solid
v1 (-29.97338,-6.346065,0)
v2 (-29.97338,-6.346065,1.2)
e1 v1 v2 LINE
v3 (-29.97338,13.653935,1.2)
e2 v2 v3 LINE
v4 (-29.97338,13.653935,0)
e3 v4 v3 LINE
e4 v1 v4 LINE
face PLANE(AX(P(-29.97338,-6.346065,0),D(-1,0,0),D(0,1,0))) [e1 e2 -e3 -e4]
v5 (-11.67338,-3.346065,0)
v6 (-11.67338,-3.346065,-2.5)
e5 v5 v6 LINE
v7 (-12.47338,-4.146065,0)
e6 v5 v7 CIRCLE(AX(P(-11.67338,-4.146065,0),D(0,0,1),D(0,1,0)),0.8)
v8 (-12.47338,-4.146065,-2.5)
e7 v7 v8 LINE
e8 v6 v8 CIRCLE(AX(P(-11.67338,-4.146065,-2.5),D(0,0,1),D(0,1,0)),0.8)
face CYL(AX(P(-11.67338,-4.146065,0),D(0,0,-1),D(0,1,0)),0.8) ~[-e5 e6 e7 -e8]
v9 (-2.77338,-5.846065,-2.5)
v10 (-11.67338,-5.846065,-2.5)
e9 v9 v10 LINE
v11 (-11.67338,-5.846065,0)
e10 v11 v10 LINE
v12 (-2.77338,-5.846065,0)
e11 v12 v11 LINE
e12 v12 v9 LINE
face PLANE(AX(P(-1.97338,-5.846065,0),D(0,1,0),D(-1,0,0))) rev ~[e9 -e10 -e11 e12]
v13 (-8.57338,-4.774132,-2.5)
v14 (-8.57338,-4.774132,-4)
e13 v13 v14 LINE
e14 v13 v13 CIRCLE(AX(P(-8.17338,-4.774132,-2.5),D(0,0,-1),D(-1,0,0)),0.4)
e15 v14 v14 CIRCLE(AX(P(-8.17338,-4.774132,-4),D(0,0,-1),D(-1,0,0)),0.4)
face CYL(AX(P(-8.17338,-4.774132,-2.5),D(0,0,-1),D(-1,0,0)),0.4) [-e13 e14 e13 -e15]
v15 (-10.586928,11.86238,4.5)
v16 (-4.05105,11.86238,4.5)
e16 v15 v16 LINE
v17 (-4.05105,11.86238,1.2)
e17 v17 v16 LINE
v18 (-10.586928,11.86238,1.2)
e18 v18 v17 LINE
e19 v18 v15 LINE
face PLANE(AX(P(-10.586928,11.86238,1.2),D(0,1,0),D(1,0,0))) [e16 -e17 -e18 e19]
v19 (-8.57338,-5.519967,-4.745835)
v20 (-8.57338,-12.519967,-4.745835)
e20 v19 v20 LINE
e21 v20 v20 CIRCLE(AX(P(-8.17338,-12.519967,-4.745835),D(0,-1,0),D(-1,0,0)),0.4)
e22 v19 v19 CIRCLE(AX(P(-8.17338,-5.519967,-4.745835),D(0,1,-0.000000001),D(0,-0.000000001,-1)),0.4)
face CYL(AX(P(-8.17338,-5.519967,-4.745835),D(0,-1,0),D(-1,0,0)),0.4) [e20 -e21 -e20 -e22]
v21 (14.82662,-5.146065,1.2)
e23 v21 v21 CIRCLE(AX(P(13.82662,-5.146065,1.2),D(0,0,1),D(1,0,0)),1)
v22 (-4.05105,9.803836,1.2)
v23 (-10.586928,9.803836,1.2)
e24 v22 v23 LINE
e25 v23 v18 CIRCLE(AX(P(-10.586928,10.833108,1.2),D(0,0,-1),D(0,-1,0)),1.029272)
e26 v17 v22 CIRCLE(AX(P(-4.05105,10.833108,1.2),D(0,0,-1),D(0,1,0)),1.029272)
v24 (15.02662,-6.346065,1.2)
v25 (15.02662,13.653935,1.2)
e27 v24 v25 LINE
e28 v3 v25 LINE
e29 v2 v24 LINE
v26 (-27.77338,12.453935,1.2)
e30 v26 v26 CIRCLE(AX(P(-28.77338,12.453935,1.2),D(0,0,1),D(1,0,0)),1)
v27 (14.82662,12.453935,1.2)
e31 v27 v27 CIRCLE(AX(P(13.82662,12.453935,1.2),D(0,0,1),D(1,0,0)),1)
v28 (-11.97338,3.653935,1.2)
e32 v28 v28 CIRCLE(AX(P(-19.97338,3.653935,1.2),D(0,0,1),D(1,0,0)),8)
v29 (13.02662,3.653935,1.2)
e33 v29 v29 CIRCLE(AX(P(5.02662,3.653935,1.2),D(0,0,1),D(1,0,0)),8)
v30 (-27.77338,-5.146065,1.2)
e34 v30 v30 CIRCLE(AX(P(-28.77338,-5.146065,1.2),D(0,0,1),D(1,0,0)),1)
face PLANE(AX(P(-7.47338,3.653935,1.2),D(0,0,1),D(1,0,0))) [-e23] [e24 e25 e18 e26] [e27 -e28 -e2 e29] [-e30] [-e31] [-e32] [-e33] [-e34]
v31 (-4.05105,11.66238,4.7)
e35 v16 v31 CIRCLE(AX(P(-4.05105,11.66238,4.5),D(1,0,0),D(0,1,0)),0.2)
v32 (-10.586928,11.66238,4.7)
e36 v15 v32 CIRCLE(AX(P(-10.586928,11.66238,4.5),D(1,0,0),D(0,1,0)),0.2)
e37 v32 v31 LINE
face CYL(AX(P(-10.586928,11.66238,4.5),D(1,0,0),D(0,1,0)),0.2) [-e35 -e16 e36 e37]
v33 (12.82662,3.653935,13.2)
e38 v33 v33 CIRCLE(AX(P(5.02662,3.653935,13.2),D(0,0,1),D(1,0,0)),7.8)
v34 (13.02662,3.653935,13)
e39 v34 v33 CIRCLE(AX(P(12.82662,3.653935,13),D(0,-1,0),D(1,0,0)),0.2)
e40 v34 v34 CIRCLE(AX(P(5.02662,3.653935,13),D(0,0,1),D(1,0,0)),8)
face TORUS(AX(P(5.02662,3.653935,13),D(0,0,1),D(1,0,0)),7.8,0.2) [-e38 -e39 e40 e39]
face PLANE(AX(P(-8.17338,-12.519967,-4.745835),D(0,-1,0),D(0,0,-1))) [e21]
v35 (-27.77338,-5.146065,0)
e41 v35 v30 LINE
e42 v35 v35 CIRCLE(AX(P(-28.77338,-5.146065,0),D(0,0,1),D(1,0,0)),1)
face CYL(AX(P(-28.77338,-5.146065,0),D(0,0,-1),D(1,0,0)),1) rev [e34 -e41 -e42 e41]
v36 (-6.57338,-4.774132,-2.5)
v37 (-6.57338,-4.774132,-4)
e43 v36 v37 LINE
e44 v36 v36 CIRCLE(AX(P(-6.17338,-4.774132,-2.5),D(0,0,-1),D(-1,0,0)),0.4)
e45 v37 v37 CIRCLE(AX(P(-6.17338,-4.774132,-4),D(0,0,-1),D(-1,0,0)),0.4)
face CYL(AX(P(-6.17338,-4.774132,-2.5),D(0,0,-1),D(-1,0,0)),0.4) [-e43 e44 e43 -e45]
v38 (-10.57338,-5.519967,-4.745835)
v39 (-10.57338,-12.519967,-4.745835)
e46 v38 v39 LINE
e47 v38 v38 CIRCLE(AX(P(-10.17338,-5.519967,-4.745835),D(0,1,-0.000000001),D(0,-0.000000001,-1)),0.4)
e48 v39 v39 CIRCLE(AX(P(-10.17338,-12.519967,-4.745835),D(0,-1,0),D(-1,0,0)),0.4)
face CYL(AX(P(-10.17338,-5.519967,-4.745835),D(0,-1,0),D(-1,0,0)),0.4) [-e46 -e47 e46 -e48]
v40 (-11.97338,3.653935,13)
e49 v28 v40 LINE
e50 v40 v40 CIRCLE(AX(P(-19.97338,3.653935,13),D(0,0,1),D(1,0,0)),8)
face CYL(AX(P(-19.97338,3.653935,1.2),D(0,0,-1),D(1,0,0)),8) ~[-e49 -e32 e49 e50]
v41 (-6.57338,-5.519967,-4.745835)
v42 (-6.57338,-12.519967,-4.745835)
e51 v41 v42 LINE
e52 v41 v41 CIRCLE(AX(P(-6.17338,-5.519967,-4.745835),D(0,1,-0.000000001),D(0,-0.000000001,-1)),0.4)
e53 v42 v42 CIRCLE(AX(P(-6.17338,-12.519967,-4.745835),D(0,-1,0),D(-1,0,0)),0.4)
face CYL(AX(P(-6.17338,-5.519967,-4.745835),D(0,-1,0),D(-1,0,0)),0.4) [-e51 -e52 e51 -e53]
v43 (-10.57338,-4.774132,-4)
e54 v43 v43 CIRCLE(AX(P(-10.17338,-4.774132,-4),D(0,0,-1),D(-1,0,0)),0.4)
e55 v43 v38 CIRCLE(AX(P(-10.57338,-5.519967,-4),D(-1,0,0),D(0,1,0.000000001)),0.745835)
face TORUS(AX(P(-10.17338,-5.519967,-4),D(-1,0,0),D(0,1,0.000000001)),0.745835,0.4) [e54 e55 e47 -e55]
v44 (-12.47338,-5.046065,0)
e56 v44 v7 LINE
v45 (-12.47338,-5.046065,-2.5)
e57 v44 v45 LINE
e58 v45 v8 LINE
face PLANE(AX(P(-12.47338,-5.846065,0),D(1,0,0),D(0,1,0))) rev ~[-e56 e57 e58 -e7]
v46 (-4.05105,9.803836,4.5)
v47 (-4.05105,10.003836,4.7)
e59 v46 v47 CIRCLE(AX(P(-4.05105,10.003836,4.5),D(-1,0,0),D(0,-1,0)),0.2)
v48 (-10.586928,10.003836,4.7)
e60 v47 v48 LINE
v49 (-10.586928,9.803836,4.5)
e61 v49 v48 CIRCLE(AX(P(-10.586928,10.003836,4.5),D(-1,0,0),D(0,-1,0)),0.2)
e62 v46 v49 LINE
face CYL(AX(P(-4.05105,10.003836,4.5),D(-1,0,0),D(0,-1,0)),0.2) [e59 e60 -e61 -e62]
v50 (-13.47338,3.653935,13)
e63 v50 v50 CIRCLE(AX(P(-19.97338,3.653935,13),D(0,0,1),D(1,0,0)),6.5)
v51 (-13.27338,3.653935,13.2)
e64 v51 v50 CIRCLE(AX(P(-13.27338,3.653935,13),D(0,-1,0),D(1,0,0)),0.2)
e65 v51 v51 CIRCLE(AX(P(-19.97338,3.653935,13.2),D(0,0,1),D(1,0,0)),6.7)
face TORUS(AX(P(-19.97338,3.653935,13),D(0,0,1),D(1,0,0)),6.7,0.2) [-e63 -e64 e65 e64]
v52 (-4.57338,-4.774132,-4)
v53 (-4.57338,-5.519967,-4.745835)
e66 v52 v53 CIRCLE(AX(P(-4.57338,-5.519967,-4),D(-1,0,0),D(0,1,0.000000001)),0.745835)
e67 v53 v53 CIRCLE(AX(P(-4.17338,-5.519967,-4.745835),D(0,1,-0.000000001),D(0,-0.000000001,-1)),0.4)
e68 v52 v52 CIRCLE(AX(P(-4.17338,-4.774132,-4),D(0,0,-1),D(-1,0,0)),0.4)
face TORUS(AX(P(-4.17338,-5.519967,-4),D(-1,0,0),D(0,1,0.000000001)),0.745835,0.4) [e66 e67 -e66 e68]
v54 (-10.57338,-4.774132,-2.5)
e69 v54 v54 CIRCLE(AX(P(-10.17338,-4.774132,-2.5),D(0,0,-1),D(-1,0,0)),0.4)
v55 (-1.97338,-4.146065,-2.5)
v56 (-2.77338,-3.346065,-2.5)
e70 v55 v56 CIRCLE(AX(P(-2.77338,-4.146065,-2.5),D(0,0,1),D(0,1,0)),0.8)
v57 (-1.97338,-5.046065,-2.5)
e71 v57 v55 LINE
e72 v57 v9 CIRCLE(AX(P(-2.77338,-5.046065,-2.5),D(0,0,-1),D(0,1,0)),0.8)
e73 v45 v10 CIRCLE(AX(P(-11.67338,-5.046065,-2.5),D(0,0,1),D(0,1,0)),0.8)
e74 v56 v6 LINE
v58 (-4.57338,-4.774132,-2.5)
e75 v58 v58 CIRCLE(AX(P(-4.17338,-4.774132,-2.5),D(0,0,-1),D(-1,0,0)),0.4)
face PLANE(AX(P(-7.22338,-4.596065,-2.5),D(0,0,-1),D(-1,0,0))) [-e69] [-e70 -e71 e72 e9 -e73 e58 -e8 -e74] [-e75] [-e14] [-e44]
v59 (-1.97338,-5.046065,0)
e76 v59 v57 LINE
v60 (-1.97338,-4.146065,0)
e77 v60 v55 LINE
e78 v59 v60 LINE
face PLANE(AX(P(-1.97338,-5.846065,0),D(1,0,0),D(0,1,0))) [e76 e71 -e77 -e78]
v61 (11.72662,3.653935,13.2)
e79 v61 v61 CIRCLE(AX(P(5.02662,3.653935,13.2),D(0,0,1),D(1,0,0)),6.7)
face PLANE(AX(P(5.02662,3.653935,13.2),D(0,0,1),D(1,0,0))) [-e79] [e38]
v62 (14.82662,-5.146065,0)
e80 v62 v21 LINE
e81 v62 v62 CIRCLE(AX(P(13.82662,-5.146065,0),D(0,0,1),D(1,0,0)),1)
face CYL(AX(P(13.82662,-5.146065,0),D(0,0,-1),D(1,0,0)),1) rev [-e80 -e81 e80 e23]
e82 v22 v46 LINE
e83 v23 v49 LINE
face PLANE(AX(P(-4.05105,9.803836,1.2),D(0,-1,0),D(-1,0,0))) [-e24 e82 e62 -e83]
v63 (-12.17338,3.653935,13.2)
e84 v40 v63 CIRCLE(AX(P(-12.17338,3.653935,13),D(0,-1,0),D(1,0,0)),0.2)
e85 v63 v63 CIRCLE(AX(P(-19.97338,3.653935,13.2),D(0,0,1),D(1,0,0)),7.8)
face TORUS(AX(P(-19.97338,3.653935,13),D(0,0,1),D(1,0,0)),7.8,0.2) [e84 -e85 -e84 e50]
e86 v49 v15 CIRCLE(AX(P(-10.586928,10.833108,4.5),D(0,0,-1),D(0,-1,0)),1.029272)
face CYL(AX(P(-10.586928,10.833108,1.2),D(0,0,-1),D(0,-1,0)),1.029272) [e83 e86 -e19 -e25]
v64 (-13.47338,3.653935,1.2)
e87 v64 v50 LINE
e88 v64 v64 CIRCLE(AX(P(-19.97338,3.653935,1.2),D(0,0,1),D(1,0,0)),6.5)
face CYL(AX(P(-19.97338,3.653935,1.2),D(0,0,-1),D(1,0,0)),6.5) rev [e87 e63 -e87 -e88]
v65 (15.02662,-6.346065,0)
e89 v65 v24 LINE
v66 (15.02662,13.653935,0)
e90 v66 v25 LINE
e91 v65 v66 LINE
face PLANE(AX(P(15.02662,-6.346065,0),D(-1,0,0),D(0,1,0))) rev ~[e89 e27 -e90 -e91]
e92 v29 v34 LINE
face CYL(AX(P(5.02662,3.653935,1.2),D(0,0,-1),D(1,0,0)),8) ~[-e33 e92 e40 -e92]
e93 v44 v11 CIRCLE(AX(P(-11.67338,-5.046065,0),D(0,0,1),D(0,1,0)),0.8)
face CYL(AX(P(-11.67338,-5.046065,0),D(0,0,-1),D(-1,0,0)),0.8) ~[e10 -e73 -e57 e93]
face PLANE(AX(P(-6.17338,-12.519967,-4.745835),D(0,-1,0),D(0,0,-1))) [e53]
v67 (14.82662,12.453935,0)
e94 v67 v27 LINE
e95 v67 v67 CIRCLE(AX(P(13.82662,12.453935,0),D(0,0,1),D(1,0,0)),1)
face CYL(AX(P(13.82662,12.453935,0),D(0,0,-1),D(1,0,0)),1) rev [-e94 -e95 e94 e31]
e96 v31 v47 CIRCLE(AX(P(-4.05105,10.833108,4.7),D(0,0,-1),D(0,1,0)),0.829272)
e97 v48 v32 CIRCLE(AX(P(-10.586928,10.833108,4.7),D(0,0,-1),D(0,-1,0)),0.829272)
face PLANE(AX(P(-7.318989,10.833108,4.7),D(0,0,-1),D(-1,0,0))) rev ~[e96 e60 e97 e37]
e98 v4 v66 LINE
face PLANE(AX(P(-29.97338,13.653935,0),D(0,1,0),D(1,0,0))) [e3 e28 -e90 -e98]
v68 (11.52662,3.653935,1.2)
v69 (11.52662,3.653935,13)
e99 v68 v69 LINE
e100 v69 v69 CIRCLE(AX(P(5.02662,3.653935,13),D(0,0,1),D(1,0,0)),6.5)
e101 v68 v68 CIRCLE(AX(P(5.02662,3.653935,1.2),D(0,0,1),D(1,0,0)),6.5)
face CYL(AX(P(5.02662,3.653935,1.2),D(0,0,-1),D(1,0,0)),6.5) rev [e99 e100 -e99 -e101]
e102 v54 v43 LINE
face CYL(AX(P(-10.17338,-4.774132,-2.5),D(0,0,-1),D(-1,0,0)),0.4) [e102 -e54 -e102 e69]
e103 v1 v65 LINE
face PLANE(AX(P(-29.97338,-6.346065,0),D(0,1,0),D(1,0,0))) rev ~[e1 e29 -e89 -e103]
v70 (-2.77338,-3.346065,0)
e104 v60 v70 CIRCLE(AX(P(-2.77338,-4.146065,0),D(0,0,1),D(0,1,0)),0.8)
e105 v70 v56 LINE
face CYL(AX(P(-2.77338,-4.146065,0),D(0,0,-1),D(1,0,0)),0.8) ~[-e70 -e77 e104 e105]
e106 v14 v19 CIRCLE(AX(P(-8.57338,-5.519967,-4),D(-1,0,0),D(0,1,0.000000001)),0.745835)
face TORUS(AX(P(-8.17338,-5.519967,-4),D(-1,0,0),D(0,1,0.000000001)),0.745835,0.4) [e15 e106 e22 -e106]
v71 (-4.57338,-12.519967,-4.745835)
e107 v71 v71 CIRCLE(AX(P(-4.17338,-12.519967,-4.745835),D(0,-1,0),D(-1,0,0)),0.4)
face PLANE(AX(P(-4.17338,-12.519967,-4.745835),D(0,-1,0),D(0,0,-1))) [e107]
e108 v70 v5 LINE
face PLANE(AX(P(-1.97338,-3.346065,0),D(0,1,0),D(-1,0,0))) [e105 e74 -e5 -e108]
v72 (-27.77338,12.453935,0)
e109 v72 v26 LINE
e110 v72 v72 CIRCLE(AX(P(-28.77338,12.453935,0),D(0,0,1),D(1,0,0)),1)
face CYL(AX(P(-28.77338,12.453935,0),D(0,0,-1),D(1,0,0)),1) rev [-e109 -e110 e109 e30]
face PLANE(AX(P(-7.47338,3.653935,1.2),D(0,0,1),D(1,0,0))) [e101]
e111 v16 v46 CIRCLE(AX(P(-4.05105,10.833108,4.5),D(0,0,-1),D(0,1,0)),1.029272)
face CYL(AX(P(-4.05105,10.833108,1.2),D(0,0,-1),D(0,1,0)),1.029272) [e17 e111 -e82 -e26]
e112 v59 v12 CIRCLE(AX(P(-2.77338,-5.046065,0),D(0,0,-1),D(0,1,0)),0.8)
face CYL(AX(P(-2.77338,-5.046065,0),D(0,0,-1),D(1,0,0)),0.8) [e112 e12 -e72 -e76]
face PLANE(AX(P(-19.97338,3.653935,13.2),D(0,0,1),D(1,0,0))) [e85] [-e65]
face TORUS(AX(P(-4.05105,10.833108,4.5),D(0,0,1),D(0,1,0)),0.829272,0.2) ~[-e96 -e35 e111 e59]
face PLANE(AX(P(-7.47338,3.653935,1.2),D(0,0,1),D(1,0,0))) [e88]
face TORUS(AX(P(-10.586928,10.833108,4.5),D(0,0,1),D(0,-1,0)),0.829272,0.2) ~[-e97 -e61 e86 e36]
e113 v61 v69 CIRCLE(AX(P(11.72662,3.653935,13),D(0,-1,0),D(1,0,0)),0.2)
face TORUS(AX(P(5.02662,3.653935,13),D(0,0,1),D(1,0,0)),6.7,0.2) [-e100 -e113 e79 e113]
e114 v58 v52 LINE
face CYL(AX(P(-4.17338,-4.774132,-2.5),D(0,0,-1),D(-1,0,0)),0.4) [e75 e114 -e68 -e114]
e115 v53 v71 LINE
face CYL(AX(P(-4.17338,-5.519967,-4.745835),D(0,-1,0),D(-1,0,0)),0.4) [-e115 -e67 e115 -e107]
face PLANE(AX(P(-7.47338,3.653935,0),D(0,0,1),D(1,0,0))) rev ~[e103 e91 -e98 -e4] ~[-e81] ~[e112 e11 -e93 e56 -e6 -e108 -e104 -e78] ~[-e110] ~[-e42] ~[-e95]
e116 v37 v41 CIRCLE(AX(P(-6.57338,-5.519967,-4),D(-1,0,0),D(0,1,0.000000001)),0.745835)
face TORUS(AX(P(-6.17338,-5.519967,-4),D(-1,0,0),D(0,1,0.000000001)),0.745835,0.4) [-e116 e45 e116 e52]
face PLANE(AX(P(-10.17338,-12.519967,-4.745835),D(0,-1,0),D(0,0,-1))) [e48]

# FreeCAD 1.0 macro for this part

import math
import FreeCAD as App
import Part
import Sketcher
from FreeCAD import Vector
Q = App.Units.Quantity


def edges_at(feature, points):
    """Names of the edges that pass closest to the given points."""
    edges = feature.Shape.Edges
    near = lambda p: min(range(len(edges)), key=lambda i: edges[i].distToShape(Part.Vertex(*p))[0])
    return sorted({f"Edge{near(p) + 1}" for p in points})


def add_polygon(sketch, points):
    """Adds a closed chain of lines whose ends are joined by coincident constraints."""
    first, n = sketch.GeometryCount, len(points)
    for a, b in zip(points, points[1:] + points[:1]):
        sketch.addGeometry(Part.LineSegment(App.Vector(*a, 0), App.Vector(*b, 0)), False)
    for i in range(n):
        sketch.addConstraint(Sketcher.Constraint("Coincident", first + i, 2, first + (i + 1) % n, 1))

doc = App.newDocument("Part")
body = doc.addObject("PartDesign::Body", "Body")

sketch1 = body.newObject("Sketcher::SketchObject", "Sketch")
sketch1.AttachmentSupport = (doc.getObject("XY_Plane"), [""])
sketch1.MapMode = "FlatFace"
add_polygon(sketch1, [(-29.97338, 13.653935), (-29.97338, -6.346065), (15.02662, -6.346065), (15.02662, 13.653935)])
sketch1.addGeometry(Part.Circle(Vector(-28.77338, -5.146065, 0), Vector(0, 0, 1), 1), False)
sketch1.addGeometry(Part.Circle(Vector(13.82662, -5.146065, 0), Vector(0, 0, 1), 1), False)
sketch1.addGeometry(Part.Circle(Vector(-28.77338, 12.453935, 0), Vector(0, 0, 1), 1), False)
sketch1.addGeometry(Part.Circle(Vector(13.82662, 12.453935, 0), Vector(0, 0, 1), 1), False)
sketch1.addConstraint([
    Sketcher.Constraint("Vertical", 0),
    Sketcher.Constraint("Horizontal", 1),
    Sketcher.Constraint("Vertical", 2),
    Sketcher.Constraint("Horizontal", 3),
    Sketcher.Constraint("Equal", 4, 5),
    Sketcher.Constraint("Equal", 5, 6),
    Sketcher.Constraint("Equal", 6, 7),
    Sketcher.Constraint("Horizontal", 4, 3, 5, 3),
    Sketcher.Constraint("Horizontal", 6, 3, 7, 3),
    Sketcher.Constraint("Vertical", 4, 3, 6, 3),
    Sketcher.Constraint("Vertical", 5, 3, 7, 3),
    Sketcher.Constraint("Diameter", 4, Q("2 mm")),
    Sketcher.Constraint("DistanceX", 1, 1, 1, 2, Q("45 mm")),
    Sketcher.Constraint("DistanceY", 0, 2, 0, 1, Q("20 mm")),
    Sketcher.Constraint("DistanceX", 4, 3, 5, 3, Q("42.6 mm")),
    Sketcher.Constraint("DistanceY", 4, 3, 6, 3, Q("17.6 mm")),
    Sketcher.Constraint("DistanceX", 0, 2, 4, 3, Q("1.2 mm")),
    Sketcher.Constraint("DistanceY", 0, 2, 4, 3, Q("1.2 mm")),
    Sketcher.Constraint("DistanceX", 4, 3, -1, 1, Q("28.77338 mm")),
    Sketcher.Constraint("DistanceY", 4, 3, -1, 1, Q("5.146065 mm")),
])
pad1 = body.newObject("PartDesign::Pad", "Pad")
pad1.Profile = sketch1
pad1.Length = 1.2

sketch2 = body.newObject("Sketcher::SketchObject", "Sketch001")
sketch2.AttachmentSupport = (doc.getObject("XY_Plane"), [""])
sketch2.MapMode = "FlatFace"
sketch2.AttachmentOffset = App.Placement(Vector(0, 0, 1.2), App.Rotation())
sketch2.addGeometry([
    Part.Circle(Vector(-19.97338, 3.653935, 0), Vector(0, 0, 1), 8),
    Part.Circle(Vector(-19.97338, 3.653935, 0), Vector(0, 0, 1), 6.5),
    Part.Circle(Vector(5.02662, 3.653935, 0), Vector(0, 0, 1), 8),
    Part.Circle(Vector(5.02662, 3.653935, 0), Vector(0, 0, 1), 6.5),
], False)
sketch2.addConstraint([
    Sketcher.Constraint("Coincident", 1, 3, 0, 3),
    Sketcher.Constraint("Coincident", 3, 3, 2, 3),
    Sketcher.Constraint("Equal", 0, 2),
    Sketcher.Constraint("Equal", 1, 3),
    Sketcher.Constraint("Horizontal", 1, 3, 2, 3),
    Sketcher.Constraint("Diameter", 0, Q("16 mm")),
    Sketcher.Constraint("Diameter", 1, Q("13 mm")),
    Sketcher.Constraint("DistanceX", 0, 3, 2, 3, Q("25 mm")),
    Sketcher.Constraint("DistanceX", 0, 3, -1, 1, Q("19.97338 mm")),
    Sketcher.Constraint("DistanceY", -1, 1, 0, 3, Q("3.653935 mm")),
])
pad2 = body.newObject("PartDesign::Pad", "Pad001")
pad2.Profile = sketch2
pad2.Length = 12

sketch3 = body.newObject("Sketcher::SketchObject", "Sketch002")
sketch3.AttachmentSupport = (doc.getObject("XY_Plane"), [""])
sketch3.MapMode = "FlatFace"
sketch3.AttachmentOffset = App.Placement(Vector(0, 0, 1.2), App.Rotation())
sketch3.addGeometry([
    Part.LineSegment(Vector(-4.05105, 11.86238, 0), Vector(-10.586928, 11.86238, 0)),
    Part.ArcOfCircle(Part.Circle(Vector(-10.586928, 10.833108, 0), Vector(0, 0, 1), 1.029272), math.radians(90), math.radians(270)),
    Part.LineSegment(Vector(-10.586928, 9.803836, 0), Vector(-4.05105, 9.803836, 0)),
    Part.ArcOfCircle(Part.Circle(Vector(-4.05105, 10.833108, 0), Vector(0, 0, 1), 1.029272), math.radians(-90), math.radians(90)),
], False)
sketch3.addConstraint([
    Sketcher.Constraint("Tangent", 0, 2, 1, 1),
    Sketcher.Constraint("Tangent", 1, 2, 2, 1),
    Sketcher.Constraint("Tangent", 2, 2, 3, 1),
    Sketcher.Constraint("Tangent", 3, 2, 0, 1),
    Sketcher.Constraint("Horizontal", 0),
    Sketcher.Constraint("Horizontal", 2),
    Sketcher.Constraint("Radius", 1, Q("1.029272 mm")),
    Sketcher.Constraint("DistanceX", 0, 2, 0, 1, Q("6.535878 mm")),
    Sketcher.Constraint("DistanceY", -1, 1, 1, 3, Q("10.833108 mm")),
    Sketcher.Constraint("DistanceX", 3, 3, -1, 1, Q("4.05105 mm")),
])
pad3 = body.newObject("PartDesign::Pad", "Pad002")
pad3.Profile = sketch3
pad3.Length = 3.5
doc.recompute()

fillet = body.newObject("PartDesign::Fillet", "Fillet")
fillet.Base = (pad3, edges_at(pad3, [
    (-27.973, 3.654, 13.2),
    (-26.473, 3.654, 13.2),
    (-2.973, 3.654, 13.2),
    (-1.473, 3.654, 13.2),
    (-11.616, 10.833, 4.7),
    (-7.319, 9.804, 4.7),
    (-3.022, 10.833, 4.7),
    (-7.319, 11.862, 4.7),
]))
fillet.Radius = 0.2

sketch4 = body.newObject("Sketcher::SketchObject", "Sketch003")
sketch4.AttachmentSupport = (doc.getObject("XY_Plane"), [""])
sketch4.MapMode = "FlatFace"
add_polygon(sketch4, [(-1.97338, -3.346065), (-1.97338, -5.846065), (-12.47338, -5.846065), (-12.47338, -3.346065)])
sketch4.addConstraint([
    Sketcher.Constraint("Vertical", 0),
    Sketcher.Constraint("Horizontal", 1),
    Sketcher.Constraint("Vertical", 2),
    Sketcher.Constraint("Horizontal", 3),
    Sketcher.Constraint("DistanceX", 1, 2, 1, 1, Q("10.5 mm")),
    Sketcher.Constraint("DistanceY", 0, 2, 0, 1, Q("2.5 mm")),
    Sketcher.Constraint("DistanceX", 0, 2, -1, 1, Q("1.97338 mm")),
    Sketcher.Constraint("DistanceY", 0, 2, -1, 1, Q("5.846065 mm")),
])
pad4 = body.newObject("PartDesign::Pad", "Pad003")
pad4.Profile = sketch4
pad4.Length = 2.5
pad4.Reversed = True
doc.recompute()

fillet2 = body.newObject("PartDesign::Fillet", "Fillet001")
fillet2.Base = (pad4, edges_at(pad4, [
    (-1.973, -3.346, -1.25),
    (-1.973, -5.846, -1.25),
    (-12.473, -5.846, -1.25),
    (-12.473, -3.346, -1.25),
]))
fillet2.Radius = 0.8

sketch5 = body.newObject("Sketcher::SketchObject", "Sketch004")
sketch5.AttachmentSupport = (doc.getObject("XY_Plane"), [""])
sketch5.MapMode = "FlatFace"
sketch5.AttachmentOffset = App.Placement(Vector(0, 0, -2.5), App.Rotation())
sketch5.addGeometry(Part.Circle(Vector(-4.17338, -4.774132, 0), Vector(0, 0, 1), 0.4), False)
sketch5.addConstraint([
    Sketcher.Constraint("Diameter", 0, Q("0.8 mm")),
    Sketcher.Constraint("DistanceX", 0, 3, -1, 1, Q("4.17338 mm")),
    Sketcher.Constraint("DistanceY", 0, 3, -1, 1, Q("4.774132 mm")),
])

sketch6 = body.newObject("Sketcher::SketchObject", "Sketch005")
sketch6.AttachmentSupport = (doc.getObject("YZ_Plane"), [""])
sketch6.MapMode = "FlatFace"
sketch6.AttachmentOffset = App.Placement(Vector(0, 0, -4.17338), App.Rotation())
sketch6.addGeometry([
    Part.LineSegment(Vector(-4.774132, -2.5, 0), Vector(-4.774132, -4, 0)),
    Part.ArcOfCircle(Part.Circle(Vector(-5.519967, -4, 0), Vector(0, 0, 1), 0.745835), math.radians(-90), math.radians(0)),
    Part.LineSegment(Vector(-5.519967, -4.745835, 0), Vector(-12.519967, -4.745835, 0)),
], False)
sketch6.addConstraint([
    Sketcher.Constraint("Tangent", 0, 2, 1, 2),
    Sketcher.Constraint("Tangent", 1, 1, 2, 1),
    Sketcher.Constraint("Vertical", 0),
    Sketcher.Constraint("Horizontal", 2),
    Sketcher.Constraint("DistanceX", 2, 2, 2, 1, Q("7 mm")),
    Sketcher.Constraint("DistanceY", 0, 2, 0, 1, Q("1.5 mm")),
    Sketcher.Constraint("DistanceY", 1, 3, -1, 1, Q("4 mm")),
    Sketcher.Constraint("Radius", 1, Q("0.745835 mm")),
    Sketcher.Constraint("DistanceX", 0, 1, -1, 1, Q("4.774132 mm")),
])
doc.recompute()

additivepipe = body.newObject("PartDesign::AdditivePipe", "AdditivePipe")
additivepipe.Profile = sketch5
additivepipe.Spine = (sketch6, ["Edge1", "Edge2", "Edge3"])
doc.recompute()

linearpattern = body.newObject("PartDesign::LinearPattern", "LinearPattern")
linearpattern.Originals = [additivepipe]
linearpattern.Direction = (doc.getObject("X_Axis"), [""])
linearpattern.Mode = "offset"
linearpattern.Offset = 2
linearpattern.Occurrences = 4
linearpattern.Reversed = True
body.Tip = linearpattern

doc.recompute()
